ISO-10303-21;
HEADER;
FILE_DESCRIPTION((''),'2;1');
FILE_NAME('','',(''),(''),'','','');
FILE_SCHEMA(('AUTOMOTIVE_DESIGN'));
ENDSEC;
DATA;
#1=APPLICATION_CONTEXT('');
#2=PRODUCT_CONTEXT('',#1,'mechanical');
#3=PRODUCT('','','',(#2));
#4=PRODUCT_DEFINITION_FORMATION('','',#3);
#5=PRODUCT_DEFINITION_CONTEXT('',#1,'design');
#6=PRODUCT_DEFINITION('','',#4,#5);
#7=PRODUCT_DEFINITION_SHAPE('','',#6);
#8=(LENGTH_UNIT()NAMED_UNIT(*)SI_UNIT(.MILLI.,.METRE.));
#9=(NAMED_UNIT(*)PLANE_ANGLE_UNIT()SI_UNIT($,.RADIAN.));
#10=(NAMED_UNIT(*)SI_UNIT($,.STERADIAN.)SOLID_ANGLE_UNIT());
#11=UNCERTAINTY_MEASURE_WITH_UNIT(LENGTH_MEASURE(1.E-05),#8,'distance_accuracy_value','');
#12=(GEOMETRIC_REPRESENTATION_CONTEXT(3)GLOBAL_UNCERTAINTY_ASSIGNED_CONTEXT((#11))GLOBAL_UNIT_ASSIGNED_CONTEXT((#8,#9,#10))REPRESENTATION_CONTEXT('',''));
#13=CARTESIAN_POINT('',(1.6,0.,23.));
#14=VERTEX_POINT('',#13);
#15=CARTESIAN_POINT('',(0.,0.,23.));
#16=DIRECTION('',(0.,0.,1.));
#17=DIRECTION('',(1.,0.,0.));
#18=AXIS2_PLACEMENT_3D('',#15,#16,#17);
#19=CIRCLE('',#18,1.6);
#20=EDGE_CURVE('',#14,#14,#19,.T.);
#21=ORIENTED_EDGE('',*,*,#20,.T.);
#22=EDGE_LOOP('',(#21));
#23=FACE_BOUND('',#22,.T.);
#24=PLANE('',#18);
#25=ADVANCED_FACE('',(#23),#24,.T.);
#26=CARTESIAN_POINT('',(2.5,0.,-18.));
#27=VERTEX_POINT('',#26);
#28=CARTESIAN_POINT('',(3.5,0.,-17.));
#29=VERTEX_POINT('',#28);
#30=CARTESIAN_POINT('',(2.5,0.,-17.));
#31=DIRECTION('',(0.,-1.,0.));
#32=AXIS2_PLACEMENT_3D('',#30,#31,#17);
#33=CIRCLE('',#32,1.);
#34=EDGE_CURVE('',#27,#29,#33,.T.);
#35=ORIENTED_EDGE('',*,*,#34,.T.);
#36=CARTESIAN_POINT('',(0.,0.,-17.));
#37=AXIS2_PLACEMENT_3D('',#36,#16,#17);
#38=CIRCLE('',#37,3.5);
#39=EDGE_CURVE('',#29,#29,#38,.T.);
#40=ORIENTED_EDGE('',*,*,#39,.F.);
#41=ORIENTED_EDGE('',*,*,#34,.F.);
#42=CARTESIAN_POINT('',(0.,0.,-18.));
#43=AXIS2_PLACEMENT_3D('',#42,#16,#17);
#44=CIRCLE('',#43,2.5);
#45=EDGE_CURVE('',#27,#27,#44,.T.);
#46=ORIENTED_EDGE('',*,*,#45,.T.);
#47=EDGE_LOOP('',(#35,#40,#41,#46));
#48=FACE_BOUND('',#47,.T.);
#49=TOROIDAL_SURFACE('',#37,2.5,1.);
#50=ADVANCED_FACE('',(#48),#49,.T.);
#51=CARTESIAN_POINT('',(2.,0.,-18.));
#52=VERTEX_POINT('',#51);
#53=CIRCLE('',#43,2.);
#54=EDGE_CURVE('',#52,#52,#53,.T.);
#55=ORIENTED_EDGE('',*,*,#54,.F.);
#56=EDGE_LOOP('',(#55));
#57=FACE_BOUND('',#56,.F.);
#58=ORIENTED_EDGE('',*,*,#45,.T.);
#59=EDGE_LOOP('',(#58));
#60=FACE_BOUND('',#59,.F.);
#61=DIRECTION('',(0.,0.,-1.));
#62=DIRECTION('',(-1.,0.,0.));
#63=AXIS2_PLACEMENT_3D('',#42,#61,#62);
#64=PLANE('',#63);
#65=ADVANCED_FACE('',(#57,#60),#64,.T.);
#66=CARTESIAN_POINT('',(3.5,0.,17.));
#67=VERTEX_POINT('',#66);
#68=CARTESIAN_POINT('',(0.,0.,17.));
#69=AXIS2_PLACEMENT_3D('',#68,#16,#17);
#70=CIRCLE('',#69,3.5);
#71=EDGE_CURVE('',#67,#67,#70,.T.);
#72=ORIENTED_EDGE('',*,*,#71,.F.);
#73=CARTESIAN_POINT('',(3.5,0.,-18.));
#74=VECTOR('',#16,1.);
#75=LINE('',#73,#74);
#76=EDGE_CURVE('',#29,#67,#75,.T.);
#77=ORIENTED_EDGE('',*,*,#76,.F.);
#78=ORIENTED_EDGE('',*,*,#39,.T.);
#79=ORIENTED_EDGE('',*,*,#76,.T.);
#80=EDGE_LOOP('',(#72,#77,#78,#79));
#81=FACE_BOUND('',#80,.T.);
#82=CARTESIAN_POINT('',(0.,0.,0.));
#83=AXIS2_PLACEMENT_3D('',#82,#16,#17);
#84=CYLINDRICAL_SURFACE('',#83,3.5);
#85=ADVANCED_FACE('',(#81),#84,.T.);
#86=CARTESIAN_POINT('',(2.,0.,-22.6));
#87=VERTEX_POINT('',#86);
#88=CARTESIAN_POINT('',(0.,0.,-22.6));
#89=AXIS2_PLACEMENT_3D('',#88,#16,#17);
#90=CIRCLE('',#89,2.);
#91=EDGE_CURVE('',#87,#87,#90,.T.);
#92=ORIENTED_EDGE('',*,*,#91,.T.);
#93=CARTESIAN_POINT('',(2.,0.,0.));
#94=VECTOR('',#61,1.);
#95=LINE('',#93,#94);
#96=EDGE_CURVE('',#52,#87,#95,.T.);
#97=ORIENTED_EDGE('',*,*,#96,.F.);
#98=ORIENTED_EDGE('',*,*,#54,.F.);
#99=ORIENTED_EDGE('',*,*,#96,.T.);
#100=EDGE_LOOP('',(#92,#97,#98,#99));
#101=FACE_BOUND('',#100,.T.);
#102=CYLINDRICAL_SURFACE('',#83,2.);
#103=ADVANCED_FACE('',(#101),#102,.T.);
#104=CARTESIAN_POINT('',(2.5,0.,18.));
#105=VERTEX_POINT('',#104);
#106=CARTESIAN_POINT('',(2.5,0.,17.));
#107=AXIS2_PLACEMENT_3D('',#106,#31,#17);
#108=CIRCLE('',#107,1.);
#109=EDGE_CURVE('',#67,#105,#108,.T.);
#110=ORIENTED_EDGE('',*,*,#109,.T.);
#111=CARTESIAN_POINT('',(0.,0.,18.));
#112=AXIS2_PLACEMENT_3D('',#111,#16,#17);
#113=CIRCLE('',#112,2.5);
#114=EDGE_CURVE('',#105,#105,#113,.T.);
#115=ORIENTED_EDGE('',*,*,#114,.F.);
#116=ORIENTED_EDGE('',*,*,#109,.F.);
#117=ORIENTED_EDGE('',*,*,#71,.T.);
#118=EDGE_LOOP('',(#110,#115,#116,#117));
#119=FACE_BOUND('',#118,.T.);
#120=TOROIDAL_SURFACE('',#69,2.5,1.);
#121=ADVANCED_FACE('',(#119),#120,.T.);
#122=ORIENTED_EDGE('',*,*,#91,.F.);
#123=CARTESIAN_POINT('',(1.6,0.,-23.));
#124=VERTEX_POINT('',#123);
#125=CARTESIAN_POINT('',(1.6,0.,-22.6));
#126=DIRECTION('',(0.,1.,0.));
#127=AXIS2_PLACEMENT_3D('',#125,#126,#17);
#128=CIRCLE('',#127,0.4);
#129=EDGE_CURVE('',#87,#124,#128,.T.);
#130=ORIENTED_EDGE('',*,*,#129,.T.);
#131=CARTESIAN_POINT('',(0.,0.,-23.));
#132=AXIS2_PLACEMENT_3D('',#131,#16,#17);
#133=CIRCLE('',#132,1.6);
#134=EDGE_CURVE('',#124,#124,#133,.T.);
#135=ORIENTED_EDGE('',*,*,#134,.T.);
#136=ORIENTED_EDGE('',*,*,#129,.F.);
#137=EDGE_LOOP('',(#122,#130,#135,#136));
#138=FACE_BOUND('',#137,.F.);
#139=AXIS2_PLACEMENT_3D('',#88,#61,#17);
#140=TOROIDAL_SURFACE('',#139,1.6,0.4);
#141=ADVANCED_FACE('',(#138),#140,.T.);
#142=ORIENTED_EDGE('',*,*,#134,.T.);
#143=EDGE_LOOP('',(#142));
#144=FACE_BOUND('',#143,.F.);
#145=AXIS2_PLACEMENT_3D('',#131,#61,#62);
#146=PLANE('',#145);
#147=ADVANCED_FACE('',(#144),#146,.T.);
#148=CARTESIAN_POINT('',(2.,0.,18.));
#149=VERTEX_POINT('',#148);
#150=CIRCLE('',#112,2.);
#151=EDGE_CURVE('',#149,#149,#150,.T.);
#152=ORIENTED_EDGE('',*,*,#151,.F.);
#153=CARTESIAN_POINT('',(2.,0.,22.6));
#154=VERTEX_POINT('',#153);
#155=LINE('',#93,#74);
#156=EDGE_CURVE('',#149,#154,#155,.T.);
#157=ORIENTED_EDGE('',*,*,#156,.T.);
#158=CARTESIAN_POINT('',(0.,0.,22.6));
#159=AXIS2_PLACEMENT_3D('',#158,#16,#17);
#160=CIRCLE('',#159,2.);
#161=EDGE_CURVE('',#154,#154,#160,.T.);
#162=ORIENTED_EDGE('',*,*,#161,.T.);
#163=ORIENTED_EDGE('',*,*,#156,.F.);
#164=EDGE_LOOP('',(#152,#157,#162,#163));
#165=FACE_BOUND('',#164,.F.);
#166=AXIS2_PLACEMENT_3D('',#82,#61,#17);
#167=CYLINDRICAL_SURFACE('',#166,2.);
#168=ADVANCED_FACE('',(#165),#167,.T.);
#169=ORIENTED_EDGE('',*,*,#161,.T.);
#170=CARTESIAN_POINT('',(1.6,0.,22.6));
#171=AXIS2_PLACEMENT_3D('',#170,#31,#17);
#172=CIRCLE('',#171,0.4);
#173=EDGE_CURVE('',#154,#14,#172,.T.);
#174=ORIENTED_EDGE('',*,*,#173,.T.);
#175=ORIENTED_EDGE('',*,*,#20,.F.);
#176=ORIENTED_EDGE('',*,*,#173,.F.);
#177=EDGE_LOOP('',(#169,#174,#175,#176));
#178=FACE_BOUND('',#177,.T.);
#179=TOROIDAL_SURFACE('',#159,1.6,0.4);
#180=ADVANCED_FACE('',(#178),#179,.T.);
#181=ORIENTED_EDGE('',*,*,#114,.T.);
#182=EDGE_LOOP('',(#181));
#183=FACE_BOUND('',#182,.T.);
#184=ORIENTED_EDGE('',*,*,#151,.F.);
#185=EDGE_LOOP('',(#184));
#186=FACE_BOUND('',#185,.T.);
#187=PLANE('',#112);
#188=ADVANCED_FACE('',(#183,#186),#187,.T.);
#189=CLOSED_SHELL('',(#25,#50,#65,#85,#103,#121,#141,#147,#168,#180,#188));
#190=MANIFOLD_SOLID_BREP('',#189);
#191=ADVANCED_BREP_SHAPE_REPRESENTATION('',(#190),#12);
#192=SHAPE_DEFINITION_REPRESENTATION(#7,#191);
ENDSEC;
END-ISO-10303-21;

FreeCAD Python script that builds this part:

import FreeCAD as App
import Part
import Sketcher
from FreeCAD import Vector


def edges_at(feature, points):
    """Names of the edges that pass closest to the given points."""
    edges = feature.Shape.Edges
    near = lambda p: min(range(len(edges)), key=lambda i: edges[i].distToShape(Part.Vertex(*p))[0])
    return sorted({f"Edge{near(p) + 1}" for p in points})

doc = App.newDocument("Part")
params = doc.addObject("Spreadsheet::Sheet", "Params")
for row, (alias, value) in enumerate([
    ("sketch1_diameter", "7 mm"),
    ("sketch1_diameter2", "4 mm"),
    ("pad1_length", "18 mm"),
    ("sketch2_diameter", "4 mm"),
    ("pad2_length", "23 mm"),
    ("fillet_radius", "1 mm"),
    ("fillet2_radius", "0.4 mm"),
], start=1):
    params.set(f"A{row}", alias)
    params.set(f"B{row}", "=" + value)
    params.setAlias(f"B{row}", alias)

body = doc.addObject("PartDesign::Body", "Body")

# Sketch on XY plane
sketch1 = body.newObject("Sketcher::SketchObject", "Sketch")
sketch1.AttachmentSupport = (doc.getObject("XY_Plane"), [""])
sketch1.MapMode = "FlatFace"
sketch1.addGeometry(Part.Circle(Vector(0, 0, 0), Vector(0, 0, 1), 3.5), False)
sketch1.addGeometry(Part.Circle(Vector(0, 0, 0), Vector(0, 0, 1), 2), False)
sketch1.addConstraint(Sketcher.Constraint("Coincident", 0, 3, -1, 1))
sketch1.addConstraint(Sketcher.Constraint("Coincident", 1, 3, -1, 1))
sketch1.addConstraint(Sketcher.Constraint("Diameter", 0, 7.0))
sketch1.addConstraint(Sketcher.Constraint("Diameter", 1, 4.0))
sketch1.setExpression("Constraints[2]", "Params.sketch1_diameter")
sketch1.setExpression("Constraints[3]", "Params.sketch1_diameter2")
pad1 = body.newObject("PartDesign::Pad", "Pad")
pad1.Profile = sketch1
pad1.setExpression("Length", "Params.pad1_length")

# Sketch on XY plane
sketch2 = body.newObject("Sketcher::SketchObject", "Sketch001")
sketch2.AttachmentSupport = (doc.getObject("XY_Plane"), [""])
sketch2.MapMode = "FlatFace"
sketch2.addGeometry(Part.Circle(Vector(0, 0, 0), Vector(0, 0, 1), 2), False)
sketch2.addConstraint(Sketcher.Constraint("Coincident", 0, 3, -1, 1))
sketch2.addConstraint(Sketcher.Constraint("Diameter", 0, 4.0))
sketch2.setExpression("Constraints[1]", "Params.sketch2_diameter")
pad2 = body.newObject("PartDesign::Pad", "Pad001")
pad2.Profile = sketch2
pad2.setExpression("Length", "Params.pad2_length")
doc.recompute()

fillet = body.newObject("PartDesign::Fillet", "Fillet")
fillet.Base = (pad2, edges_at(pad2, [(-3.5, 0, 18)]))
fillet.setExpression("Radius", "Params.fillet_radius")
doc.recompute()

fillet2 = body.newObject("PartDesign::Fillet", "Fillet001")
fillet2.Base = (fillet, edges_at(fillet, [(-2, 0, 23)]))
fillet2.setExpression("Radius", "Params.fillet2_radius")
doc.recompute()

mirrored = body.newObject("PartDesign::Mirrored", "Mirrored")
mirrored.Originals = [pad1, pad2, fillet, fillet2]
mirrored.MirrorPlane = (doc.getObject("XY_Plane"), [""])
body.Tip = mirrored

doc.recompute()
